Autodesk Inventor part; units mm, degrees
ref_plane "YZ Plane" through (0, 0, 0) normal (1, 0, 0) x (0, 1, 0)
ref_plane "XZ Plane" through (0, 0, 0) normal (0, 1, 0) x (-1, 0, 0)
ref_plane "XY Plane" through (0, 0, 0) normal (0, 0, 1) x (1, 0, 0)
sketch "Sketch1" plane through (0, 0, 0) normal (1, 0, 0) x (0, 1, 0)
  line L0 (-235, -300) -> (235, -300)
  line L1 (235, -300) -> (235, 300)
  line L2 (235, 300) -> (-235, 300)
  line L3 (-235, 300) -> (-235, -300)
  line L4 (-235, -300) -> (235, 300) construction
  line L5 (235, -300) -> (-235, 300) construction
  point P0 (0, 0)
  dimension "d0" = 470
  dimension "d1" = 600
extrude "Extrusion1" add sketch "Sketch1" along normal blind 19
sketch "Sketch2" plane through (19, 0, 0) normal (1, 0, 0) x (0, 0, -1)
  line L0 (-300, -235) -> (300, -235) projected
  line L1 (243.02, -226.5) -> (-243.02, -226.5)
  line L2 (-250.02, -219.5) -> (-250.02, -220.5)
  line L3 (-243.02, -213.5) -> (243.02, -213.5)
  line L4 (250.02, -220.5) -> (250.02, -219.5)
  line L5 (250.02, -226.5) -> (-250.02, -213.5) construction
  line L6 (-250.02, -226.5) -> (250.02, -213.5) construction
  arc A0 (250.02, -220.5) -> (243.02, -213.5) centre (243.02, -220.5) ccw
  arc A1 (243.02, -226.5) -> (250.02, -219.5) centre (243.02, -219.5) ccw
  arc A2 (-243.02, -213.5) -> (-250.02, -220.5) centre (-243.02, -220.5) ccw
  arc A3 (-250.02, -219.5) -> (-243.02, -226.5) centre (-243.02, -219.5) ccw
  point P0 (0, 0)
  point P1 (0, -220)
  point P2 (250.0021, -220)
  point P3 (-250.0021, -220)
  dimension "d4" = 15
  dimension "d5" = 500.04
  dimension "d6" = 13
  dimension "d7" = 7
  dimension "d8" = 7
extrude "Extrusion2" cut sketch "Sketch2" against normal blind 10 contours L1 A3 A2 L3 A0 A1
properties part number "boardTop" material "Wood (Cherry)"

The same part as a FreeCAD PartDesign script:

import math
import FreeCAD as App
import Part
import Sketcher

V = App.Vector

doc = App.newDocument("Part")
body = doc.addObject("PartDesign::Body", "Body")

# Sketch on YZ plane
sketch1 = body.newObject("Sketcher::SketchObject", "Sketch")
sketch1.AttachmentSupport = (doc.getObject("YZ_Plane"), [""])
sketch1.MapMode = "FlatFace"
sketch1.addGeometry([
    Part.LineSegment(V(-235, 300, 0), V(-235, -300, 0)),
    Part.LineSegment(V(-235, -300, 0), V(235, -300, 0)),
    Part.LineSegment(V(235, -300, 0), V(235, 300, 0)),
    Part.LineSegment(V(235, 300, 0), V(-235, 300, 0)),
], False)
sketch1.addConstraint([
    Sketcher.Constraint("Coincident", 0, 2, 1, 1),
    Sketcher.Constraint("Coincident", 1, 2, 2, 1),
    Sketcher.Constraint("Coincident", 2, 2, 3, 1),
    Sketcher.Constraint("Coincident", 3, 2, 0, 1),
    Sketcher.Constraint("Vertical", 0),
    Sketcher.Constraint("Horizontal", 1),
    Sketcher.Constraint("Vertical", 2),
    Sketcher.Constraint("Horizontal", 3),
    Sketcher.Constraint("Symmetric", 0, 2, 2, 2, -1, 1),
    Sketcher.Constraint("DistanceX", 1, 1, 1, 2, 470.0),
    Sketcher.Constraint("DistanceY", 0, 2, 0, 1, 600.0),
])
pad1 = body.newObject("PartDesign::Pad", "Pad")
pad1.Profile = sketch1
pad1.Length = 19

# Sketch on YZ plane
sketch2 = body.newObject("Sketcher::SketchObject", "Sketch001")
sketch2.AttachmentSupport = (doc.getObject("YZ_Plane"), [""])
sketch2.MapMode = "FlatFace"
sketch2.AttachmentOffset = App.Placement(V(0, 0, 19), App.Rotation())
sketch2.addGeometry([
    Part.LineSegment(V(-226, 243, 0), V(-226, -243, 0)),  # 0
    Part.ArcOfCircle(Part.Circle(V(-220, -243, 0), V(0, 0, 1), 7), math.radians(180), math.radians(266)),  # 1
    Part.ArcOfCircle(Part.Circle(V(-220, -243, 0), V(0, 0, 1), 7), math.radians(-86), math.radians(0)),  # 2
    Part.LineSegment(V(-214, -243, 0), V(-214, 243, 0)),  # 3
    Part.ArcOfCircle(Part.Circle(V(-220, 243, 0), V(0, 0, 1), 7), math.radians(0), math.radians(86)),  # 4
    Part.ArcOfCircle(Part.Circle(V(-220, 243, 0), V(0, 0, 1), 7), math.radians(94), math.radians(180)),  # 5
], False)
sketch2.addConstraint([
    Sketcher.Constraint("Tangent", 0, 2, 1, 1),
    Sketcher.Constraint("Coincident", 1, 2, 2, 1),
    Sketcher.Constraint("Tangent", 2, 2, 3, 1),
    Sketcher.Constraint("Tangent", 3, 2, 4, 1),
    Sketcher.Constraint("Coincident", 4, 2, 5, 1),
    Sketcher.Constraint("Tangent", 5, 2, 0, 1),
    Sketcher.Constraint("Vertical", 0),
    Sketcher.Constraint("Vertical", 3),
    Sketcher.Constraint("Equal", 1, 2),
    Sketcher.Constraint("Equal", 2, 4),
    Sketcher.Constraint("Equal", 4, 5),
    Sketcher.Constraint("Symmetric", 1, 2, 4, 2, -1),
    Sketcher.Constraint("Horizontal", 1, 3, 2, 3),
    Sketcher.Constraint("Radius", 1, 7.0),
    Sketcher.Constraint("DistanceX", 0, 2, 2, 2, 13.0),
    Sketcher.Constraint("DistanceX", 1, 2, -1, 1, 220.0),
    Sketcher.Constraint("DistanceY", 0, 2, 0, 1, 486.04),
])
pocket1 = body.newObject("PartDesign::Pocket", "Pocket")
pocket1.Profile = sketch2
pocket1.Length = 10

doc.recompute()
